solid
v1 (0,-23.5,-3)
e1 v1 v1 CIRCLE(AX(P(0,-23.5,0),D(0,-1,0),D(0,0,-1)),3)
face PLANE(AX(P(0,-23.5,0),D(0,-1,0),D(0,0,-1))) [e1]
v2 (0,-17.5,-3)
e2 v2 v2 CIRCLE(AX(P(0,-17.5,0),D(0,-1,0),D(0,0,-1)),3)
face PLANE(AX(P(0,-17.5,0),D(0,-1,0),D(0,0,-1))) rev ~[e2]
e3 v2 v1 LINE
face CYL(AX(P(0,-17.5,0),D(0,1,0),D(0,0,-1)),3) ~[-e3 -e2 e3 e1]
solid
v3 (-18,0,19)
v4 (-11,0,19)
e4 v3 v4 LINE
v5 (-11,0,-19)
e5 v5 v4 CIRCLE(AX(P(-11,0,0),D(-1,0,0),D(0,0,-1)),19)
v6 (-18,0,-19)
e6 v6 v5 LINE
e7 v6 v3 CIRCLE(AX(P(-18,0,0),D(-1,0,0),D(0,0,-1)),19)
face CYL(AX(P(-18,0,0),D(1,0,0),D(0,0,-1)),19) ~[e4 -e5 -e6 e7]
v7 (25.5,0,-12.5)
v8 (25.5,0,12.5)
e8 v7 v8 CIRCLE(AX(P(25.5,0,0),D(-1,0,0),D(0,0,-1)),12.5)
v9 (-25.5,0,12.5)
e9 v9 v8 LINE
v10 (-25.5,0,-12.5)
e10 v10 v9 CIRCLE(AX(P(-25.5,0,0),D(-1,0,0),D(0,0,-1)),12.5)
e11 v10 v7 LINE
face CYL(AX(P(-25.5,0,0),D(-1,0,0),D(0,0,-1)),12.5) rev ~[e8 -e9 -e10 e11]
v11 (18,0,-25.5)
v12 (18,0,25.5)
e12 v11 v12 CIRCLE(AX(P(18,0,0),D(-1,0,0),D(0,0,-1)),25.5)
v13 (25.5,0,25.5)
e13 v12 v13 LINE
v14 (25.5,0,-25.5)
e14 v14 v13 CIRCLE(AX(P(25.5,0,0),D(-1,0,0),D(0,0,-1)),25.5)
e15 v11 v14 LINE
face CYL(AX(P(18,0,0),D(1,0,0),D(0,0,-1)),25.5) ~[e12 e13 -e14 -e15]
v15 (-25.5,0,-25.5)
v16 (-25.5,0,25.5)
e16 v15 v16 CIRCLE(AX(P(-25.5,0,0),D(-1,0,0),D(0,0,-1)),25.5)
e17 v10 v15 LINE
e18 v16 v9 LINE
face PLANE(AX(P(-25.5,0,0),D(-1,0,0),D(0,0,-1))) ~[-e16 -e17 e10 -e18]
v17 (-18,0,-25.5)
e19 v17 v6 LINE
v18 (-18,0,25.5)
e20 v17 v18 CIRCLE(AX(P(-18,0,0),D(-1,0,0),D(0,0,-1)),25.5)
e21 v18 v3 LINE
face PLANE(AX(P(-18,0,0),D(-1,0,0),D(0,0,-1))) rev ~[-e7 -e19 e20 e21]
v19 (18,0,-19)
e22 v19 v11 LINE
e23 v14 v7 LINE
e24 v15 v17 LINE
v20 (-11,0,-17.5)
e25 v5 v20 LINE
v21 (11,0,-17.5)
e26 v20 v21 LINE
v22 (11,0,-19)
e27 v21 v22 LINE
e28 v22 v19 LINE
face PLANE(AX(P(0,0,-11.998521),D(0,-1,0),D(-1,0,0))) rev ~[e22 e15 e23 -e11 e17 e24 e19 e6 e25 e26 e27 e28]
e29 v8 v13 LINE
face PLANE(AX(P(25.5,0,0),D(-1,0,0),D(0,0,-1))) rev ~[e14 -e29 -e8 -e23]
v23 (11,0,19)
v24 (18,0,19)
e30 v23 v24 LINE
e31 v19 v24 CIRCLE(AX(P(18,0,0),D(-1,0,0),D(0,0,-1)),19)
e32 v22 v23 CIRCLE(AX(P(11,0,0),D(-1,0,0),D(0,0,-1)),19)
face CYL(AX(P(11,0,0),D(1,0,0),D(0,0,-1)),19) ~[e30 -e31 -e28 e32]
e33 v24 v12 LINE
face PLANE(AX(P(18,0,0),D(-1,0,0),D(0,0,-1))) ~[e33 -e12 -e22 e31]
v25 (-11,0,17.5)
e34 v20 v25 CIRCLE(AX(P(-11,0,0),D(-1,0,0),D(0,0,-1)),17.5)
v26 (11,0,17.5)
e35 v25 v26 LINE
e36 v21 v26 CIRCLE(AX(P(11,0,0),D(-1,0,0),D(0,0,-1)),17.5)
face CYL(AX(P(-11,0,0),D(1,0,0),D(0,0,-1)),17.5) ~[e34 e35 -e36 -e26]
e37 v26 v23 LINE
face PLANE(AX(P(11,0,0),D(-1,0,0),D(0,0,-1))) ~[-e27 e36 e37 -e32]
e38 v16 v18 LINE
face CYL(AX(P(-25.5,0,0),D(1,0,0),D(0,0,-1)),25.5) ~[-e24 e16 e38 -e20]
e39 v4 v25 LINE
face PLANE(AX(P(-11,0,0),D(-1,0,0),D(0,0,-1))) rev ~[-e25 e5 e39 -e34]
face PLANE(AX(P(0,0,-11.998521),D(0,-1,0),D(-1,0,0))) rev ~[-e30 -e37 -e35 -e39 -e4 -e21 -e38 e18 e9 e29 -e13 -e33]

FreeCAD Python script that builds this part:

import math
import FreeCAD as App
import Part
import Sketcher


def add_polygon(sketch, points):
    """Adds a closed chain of lines whose ends are joined by coincident constraints."""
    first, n = sketch.GeometryCount, len(points)
    for a, b in zip(points, points[1:] + points[:1]):
        sketch.addGeometry(Part.LineSegment(App.Vector(*a, 0), App.Vector(*b, 0)), False)
    for i in range(n):
        sketch.addConstraint(Sketcher.Constraint("Coincident", first + i, 2, first + (i + 1) % n, 1))

doc = App.newDocument("Part")
params = doc.addObject("Spreadsheet::Sheet", "Params")
for row, (alias, value) in enumerate([
    ("sketch1_width", "51 mm"),
    ("sketch1_width2", "7 mm"),
    ("sketch1_width3", "22 mm"),
    ("sketch1_height", "25.5 mm"),
    ("sketch1_height2", "6.5 mm"),
    ("revolution_angle", "180 deg"),
    ("sketch2_radius", "12.5 mm"),
    ("sketch3_diameter", "6 mm"),
    ("pad1_length", "6 mm"),
], start=1):
    params.set(f"A{row}", alias)
    params.set(f"B{row}", "=" + value)
    params.setAlias(f"B{row}", alias)

body = doc.addObject("PartDesign::Body", "Body")

sketch1 = doc.addObject("Sketcher::SketchObject", "Sketch")
body.addObject(sketch1)
sketch1.AttachmentSupport = (doc.XZ_Plane, [""])
sketch1.MapMode = "FlatFace"
add_polygon(sketch1, [(-25.5, 0), (25.5, 0), (25.5, -25.5), (18, -25.5), (18, -19), (11, -19), (11, -17.5), (-11, -17.5), (-11, -19), (-18, -19), (-18, -25.5), (-25.5, -25.5)])
sketch1.addConstraint(Sketcher.Constraint("Horizontal", 0))
sketch1.addConstraint(Sketcher.Constraint("Vertical", 1))
sketch1.addConstraint(Sketcher.Constraint("Horizontal", 2))
sketch1.addConstraint(Sketcher.Constraint("Vertical", 3))
sketch1.addConstraint(Sketcher.Constraint("Horizontal", 4))
sketch1.addConstraint(Sketcher.Constraint("Vertical", 5))
sketch1.addConstraint(Sketcher.Constraint("Horizontal", 6))
sketch1.addConstraint(Sketcher.Constraint("Vertical", 7))
sketch1.addConstraint(Sketcher.Constraint("Horizontal", 8))
sketch1.addConstraint(Sketcher.Constraint("Vertical", 9))
sketch1.addConstraint(Sketcher.Constraint("Horizontal", 10))
sketch1.addConstraint(Sketcher.Constraint("Vertical", 11))
sketch1.addConstraint(Sketcher.Constraint("Symmetric", 0, 2, 11, 2, -1, 1))
sketch1.addConstraint(Sketcher.Constraint("Symmetric", 4, 2, 7, 2, -2))
sketch1.addConstraint(Sketcher.Constraint("Symmetric", 2, 2, 9, 2, -2))
sketch1.addConstraint(Sketcher.Constraint("DistanceX", 0, 1, 0, 2, 51.0))
sketch1.addConstraint(Sketcher.Constraint("DistanceX", 4, 2, 4, 1, 7.0))
sketch1.addConstraint(Sketcher.Constraint("DistanceX", 6, 2, 6, 1, 22.0))
sketch1.addConstraint(Sketcher.Constraint("DistanceY", 1, 2, 1, 1, 25.5))
sketch1.addConstraint(Sketcher.Constraint("DistanceY", 3, 1, 3, 2, 6.5))
sketch1.addConstraint(Sketcher.Constraint("DistanceY", 5, 1, 5, 2, 1.5))
sketch1.setExpression("Constraints[27]", "Params.sketch1_width")
sketch1.setExpression("Constraints[28]", "Params.sketch1_width2")
sketch1.setExpression("Constraints[29]", "Params.sketch1_width3")
sketch1.setExpression("Constraints[30]", "Params.sketch1_height")
sketch1.setExpression("Constraints[31]", "Params.sketch1_height2")
revolution = doc.addObject("PartDesign::Revolution", "Revolution")
body.addObject(revolution)
revolution.Profile = sketch1
revolution.ReferenceAxis = (sketch1, ["H_Axis"])
revolution.setExpression("Angle", "Params.revolution_angle")
revolution.Reversed = True

sketch2 = doc.addObject("Sketcher::SketchObject", "Sketch001")
body.addObject(sketch2)
sketch2.AttachmentSupport = (doc.YZ_Plane, [""])
sketch2.MapMode = "FlatFace"
sketch2.AttachmentOffset = App.Placement(App.Vector(0, 0, -25.5), App.Rotation())
sketch2.addGeometry(Part.LineSegment(App.Vector(0, 12, 0), App.Vector(0, -12, 0)), False)
sketch2.addGeometry(Part.ArcOfCircle(Part.Circle(App.Vector(0, 0, 0), App.Vector(0, 0, 1), 12), math.radians(90), math.radians(270)), False)
sketch2.addConstraint(Sketcher.Constraint("Coincident", 0, 1, 1, 1))
sketch2.addConstraint(Sketcher.Constraint("Coincident", 1, 2, 0, 2))
sketch2.addConstraint(Sketcher.Constraint("Vertical", 0))
sketch2.addConstraint(Sketcher.Constraint("Coincident", 1, 3, -1, 1))
sketch2.addConstraint(Sketcher.Constraint("PointOnObject", 0, 1, -2))
sketch2.addConstraint(Sketcher.Constraint("Radius", 1, 12.5))
sketch2.setExpression("Constraints[5]", "Params.sketch2_radius")
pocket1 = doc.addObject("PartDesign::Pocket", "Pocket")
body.addObject(pocket1)
pocket1.Profile = sketch2
pocket1.Type = "ThroughAll"
pocket1.Reversed = True
body2 = doc.addObject("PartDesign::Body", "Body001")

sketch3 = doc.addObject("Sketcher::SketchObject", "Sketch002")
body2.addObject(sketch3)
sketch3.AttachmentSupport = (doc.getObject("XZ_Plane001"), [""])
sketch3.MapMode = "FlatFace"
sketch3.AttachmentOffset = App.Placement(App.Vector(0, 0, 17.5), App.Rotation())
sketch3.addGeometry(Part.Circle(App.Vector(0, 0, 0), App.Vector(0, 0, 1), 3), False)
sketch3.addConstraint(Sketcher.Constraint("Coincident", 0, 3, -1, 1))
sketch3.addConstraint(Sketcher.Constraint("Diameter", 0, 6.0))
sketch3.setExpression("Constraints[1]", "Params.sketch3_diameter")
pad1 = doc.addObject("PartDesign::Pad", "Pad")
body2.addObject(pad1)
pad1.Profile = sketch3
pad1.setExpression("Length", "Params.pad1_length")

doc.recompute()
